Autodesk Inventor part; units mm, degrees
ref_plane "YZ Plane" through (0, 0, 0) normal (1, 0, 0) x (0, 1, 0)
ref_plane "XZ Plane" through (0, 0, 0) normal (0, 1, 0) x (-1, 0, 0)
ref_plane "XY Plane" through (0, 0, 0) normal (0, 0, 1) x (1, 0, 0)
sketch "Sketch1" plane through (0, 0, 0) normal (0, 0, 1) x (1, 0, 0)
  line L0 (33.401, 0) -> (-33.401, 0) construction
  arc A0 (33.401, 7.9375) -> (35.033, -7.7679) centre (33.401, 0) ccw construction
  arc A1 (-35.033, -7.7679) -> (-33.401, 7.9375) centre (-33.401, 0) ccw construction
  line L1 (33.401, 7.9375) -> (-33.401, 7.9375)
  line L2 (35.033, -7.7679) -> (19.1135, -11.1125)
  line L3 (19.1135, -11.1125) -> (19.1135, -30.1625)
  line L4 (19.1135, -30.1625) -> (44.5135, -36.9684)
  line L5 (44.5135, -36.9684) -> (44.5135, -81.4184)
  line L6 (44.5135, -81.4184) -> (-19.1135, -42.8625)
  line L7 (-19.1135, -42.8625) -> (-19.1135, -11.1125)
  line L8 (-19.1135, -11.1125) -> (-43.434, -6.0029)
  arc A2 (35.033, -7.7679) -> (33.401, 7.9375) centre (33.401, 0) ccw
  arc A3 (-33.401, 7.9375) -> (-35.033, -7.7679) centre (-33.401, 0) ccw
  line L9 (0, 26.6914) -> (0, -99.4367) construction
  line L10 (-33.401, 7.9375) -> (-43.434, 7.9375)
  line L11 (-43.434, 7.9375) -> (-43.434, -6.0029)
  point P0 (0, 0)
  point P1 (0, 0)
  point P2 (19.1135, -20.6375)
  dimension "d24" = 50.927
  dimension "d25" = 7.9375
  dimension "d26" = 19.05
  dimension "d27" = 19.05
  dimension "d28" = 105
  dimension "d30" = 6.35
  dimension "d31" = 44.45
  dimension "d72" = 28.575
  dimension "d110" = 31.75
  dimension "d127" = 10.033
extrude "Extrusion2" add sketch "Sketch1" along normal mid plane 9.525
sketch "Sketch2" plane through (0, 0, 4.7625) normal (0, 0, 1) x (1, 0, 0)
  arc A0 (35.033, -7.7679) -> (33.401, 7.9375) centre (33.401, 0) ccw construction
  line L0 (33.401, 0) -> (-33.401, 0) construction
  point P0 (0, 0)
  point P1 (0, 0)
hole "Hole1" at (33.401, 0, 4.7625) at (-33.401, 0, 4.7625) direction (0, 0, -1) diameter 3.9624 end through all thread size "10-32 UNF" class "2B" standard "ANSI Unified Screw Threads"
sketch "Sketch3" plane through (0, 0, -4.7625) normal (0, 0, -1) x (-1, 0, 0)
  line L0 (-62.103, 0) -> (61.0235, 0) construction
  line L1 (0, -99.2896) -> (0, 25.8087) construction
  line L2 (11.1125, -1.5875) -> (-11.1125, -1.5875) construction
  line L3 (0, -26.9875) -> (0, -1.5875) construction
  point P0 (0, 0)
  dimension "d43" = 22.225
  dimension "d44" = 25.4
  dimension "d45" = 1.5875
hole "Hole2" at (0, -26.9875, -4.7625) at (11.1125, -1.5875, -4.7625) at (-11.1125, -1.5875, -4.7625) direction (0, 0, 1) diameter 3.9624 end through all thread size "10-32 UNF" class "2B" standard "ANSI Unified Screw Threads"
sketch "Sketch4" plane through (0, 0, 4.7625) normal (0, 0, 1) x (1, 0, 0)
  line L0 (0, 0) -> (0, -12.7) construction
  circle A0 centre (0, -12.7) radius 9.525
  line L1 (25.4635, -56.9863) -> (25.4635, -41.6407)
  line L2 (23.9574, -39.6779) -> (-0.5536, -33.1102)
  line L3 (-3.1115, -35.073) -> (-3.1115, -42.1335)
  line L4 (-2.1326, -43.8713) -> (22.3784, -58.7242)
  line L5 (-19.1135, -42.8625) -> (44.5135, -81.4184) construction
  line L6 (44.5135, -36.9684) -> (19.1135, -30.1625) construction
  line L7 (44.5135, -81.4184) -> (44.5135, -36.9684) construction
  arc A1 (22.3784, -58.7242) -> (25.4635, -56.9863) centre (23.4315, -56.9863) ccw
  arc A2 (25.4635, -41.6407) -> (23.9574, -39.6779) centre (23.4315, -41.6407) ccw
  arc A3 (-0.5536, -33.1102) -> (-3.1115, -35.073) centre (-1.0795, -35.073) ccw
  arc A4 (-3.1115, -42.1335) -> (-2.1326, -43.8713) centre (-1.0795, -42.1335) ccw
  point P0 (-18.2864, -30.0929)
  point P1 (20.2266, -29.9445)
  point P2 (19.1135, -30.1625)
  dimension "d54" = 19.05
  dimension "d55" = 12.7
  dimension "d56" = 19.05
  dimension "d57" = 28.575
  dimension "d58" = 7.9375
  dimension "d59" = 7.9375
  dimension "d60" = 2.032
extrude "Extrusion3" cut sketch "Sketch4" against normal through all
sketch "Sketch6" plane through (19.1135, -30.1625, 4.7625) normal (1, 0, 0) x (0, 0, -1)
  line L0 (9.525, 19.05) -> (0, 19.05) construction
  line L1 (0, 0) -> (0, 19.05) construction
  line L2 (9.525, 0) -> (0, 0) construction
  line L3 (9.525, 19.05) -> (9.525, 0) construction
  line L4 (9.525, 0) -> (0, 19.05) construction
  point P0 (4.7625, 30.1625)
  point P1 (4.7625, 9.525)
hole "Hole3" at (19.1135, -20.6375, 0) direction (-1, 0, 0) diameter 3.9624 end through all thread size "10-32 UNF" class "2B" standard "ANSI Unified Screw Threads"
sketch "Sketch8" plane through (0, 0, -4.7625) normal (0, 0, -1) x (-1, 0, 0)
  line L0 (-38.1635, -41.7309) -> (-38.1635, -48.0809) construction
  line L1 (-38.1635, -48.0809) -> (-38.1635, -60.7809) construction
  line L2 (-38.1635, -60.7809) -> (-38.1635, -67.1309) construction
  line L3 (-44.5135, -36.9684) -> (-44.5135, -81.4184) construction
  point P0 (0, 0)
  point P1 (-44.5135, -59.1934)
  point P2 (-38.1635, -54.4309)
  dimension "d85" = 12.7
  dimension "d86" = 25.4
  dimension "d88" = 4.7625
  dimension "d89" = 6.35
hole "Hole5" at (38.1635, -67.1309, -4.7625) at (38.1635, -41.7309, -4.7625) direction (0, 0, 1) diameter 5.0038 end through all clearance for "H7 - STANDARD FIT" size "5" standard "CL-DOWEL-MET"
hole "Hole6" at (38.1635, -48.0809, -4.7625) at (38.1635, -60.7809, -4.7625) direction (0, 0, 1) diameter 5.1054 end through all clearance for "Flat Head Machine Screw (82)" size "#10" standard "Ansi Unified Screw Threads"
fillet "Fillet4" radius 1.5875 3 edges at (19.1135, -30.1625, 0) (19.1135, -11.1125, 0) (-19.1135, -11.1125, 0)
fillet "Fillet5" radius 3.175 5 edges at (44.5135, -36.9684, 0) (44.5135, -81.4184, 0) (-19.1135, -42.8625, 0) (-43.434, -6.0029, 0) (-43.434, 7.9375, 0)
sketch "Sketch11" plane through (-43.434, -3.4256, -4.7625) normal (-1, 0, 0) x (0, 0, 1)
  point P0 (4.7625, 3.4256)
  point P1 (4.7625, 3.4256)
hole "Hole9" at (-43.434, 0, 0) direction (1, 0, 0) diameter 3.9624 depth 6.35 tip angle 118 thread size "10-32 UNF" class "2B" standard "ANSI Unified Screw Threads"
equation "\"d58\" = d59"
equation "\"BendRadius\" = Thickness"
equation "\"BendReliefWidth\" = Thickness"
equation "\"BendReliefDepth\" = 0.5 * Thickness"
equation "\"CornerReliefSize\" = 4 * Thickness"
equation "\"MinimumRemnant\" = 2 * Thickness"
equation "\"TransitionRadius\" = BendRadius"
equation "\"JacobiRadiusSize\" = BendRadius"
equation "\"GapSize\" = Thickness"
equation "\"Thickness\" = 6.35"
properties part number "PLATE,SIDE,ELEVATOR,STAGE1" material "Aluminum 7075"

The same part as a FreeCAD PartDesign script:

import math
import FreeCAD as App
import Part
import Sketcher

V = App.Vector
Q = App.Units.Quantity


def edges_at(feature, points):
    """Names of the edges that pass closest to the given points."""
    edges = feature.Shape.Edges
    near = lambda p: min(range(len(edges)), key=lambda i: edges[i].distToShape(Part.Vertex(*p))[0])
    return sorted({f"Edge{near(p) + 1}" for p in points})

doc = App.newDocument("Part")
body = doc.addObject("PartDesign::Body", "Body")

# Sketch on XY plane
sketch1 = body.newObject("Sketcher::SketchObject", "Sketch")
sketch1.AttachmentSupport = (doc.getObject("XY_Plane"), [""])
sketch1.MapMode = "FlatFace"
sketch1.addGeometry([
    Part.ArcOfCircle(Part.Circle(V(33, 0, 0), V(0, 0, 1), 8), math.radians(-78), math.radians(90)),  # 0
    Part.LineSegment(V(33, 8, 0), V(-43, 8, 0)),  # 1
    Part.LineSegment(V(-43, 8, 0), V(-43, -6, 0)),  # 2
    Part.LineSegment(V(-43, -6, 0), V(-19, -11, 0)),  # 3
    Part.LineSegment(V(-19, -11, 0), V(-19, -43, 0)),  # 4
    Part.LineSegment(V(-19, -43, 0), V(45, -81, 0)),  # 5
    Part.LineSegment(V(45, -81, 0), V(45, -37, 0)),  # 6
    Part.LineSegment(V(45, -37, 0), V(19, -30, 0)),  # 7
    Part.LineSegment(V(19, -30, 0), V(19, -11, 0)),  # 8
    Part.LineSegment(V(19, -11, 0), V(35, -8, 0)),  # 9
], False)
sketch1.addConstraint([
    Sketcher.Constraint("Tangent", 0, 2, 1, 1),
    Sketcher.Constraint("Coincident", 1, 2, 2, 1),
    Sketcher.Constraint("Coincident", 2, 2, 3, 1),
    Sketcher.Constraint("Coincident", 3, 2, 4, 1),
    Sketcher.Constraint("Coincident", 4, 2, 5, 1),
    Sketcher.Constraint("Coincident", 5, 2, 6, 1),
    Sketcher.Constraint("Coincident", 6, 2, 7, 1),
    Sketcher.Constraint("Coincident", 7, 2, 8, 1),
    Sketcher.Constraint("Coincident", 8, 2, 9, 1),
    Sketcher.Constraint("Tangent", 9, 2, 0, 1),
    Sketcher.Constraint("Horizontal", 1),
    Sketcher.Constraint("Vertical", 2),
    Sketcher.Constraint("Vertical", 4),
    Sketcher.Constraint("Vertical", 6),
    Sketcher.Constraint("Vertical", 8),
    Sketcher.Constraint("Symmetric", 3, 2, 8, 2, -2),
    Sketcher.Constraint("PointOnObject", 0, 3, -1),
    Sketcher.Constraint("Radius", 0, Q("0.3125 in")),
    Sketcher.Constraint("DistanceY", 4, 2, 4, 1, Q("1.25 in")),
    Sketcher.Constraint("DistanceY", 6, 1, 6, 2, Q("1.75 in")),
    Sketcher.Constraint("DistanceY", 8, 1, 8, 2, Q("0.75 in")),
    Sketcher.Constraint("DistanceY", 3, 2, 1, 2, Q("0.75 in")),
    Sketcher.Constraint("Angle", 7, Q("165 deg")),
    Sketcher.Constraint("DistanceX", 7, 2, 6, 2, Q("1 in")),
    Sketcher.Constraint("DistanceX", 1, 2, 1, 1, Q("3.025 in")),
    Sketcher.Constraint("DistanceX", 1, 2, -1, 1, Q("1.71 in")),
    Sketcher.Constraint("DistanceX", 4, 2, 5, 2, Q("2.505 in")),
    Sketcher.Constraint("Distance", 3, Q("0.9784 in")),
])
pad1 = body.newObject("PartDesign::Pad", "Pad")
pad1.Profile = sketch1
pad1.Length = Q("0.375 in")
pad1.Midplane = True

# Sketch on XY plane
sketch2 = body.newObject("Sketcher::SketchObject", "Sketch001")
sketch2.AttachmentSupport = (doc.getObject("XY_Plane"), [""])
sketch2.MapMode = "FlatFace"
sketch2.AttachmentOffset = App.Placement(V(0, 0, 0.1875 * 25.4), App.Rotation())
sketch2.addGeometry([
    Part.Circle(V(33.4, 0, 0), V(0, 0, 1), 2),
    Part.Circle(V(-33.4, 0, 0), V(0, 0, 1), 2),
], False)
sketch2.addConstraint([
    Sketcher.Constraint("Equal", 0, 1),
    Sketcher.Constraint("Symmetric", 0, 3, 1, 3, -1, 1),
    Sketcher.Constraint("PointOnObject", 0, 3, -1),
    Sketcher.Constraint("Diameter", 0, Q("0.156 in")),
    Sketcher.Constraint("DistanceX", 1, 3, 0, 3, Q("2.63 in")),
])
doc.recompute()
hole = body.newObject("PartDesign::Hole", "Hole")
hole.Profile = sketch2
hole.ThreadType = "None"
hole.Diameter = Q("0.156 in")
hole.DepthType = "ThroughAll"

# Sketch on XY plane
sketch3 = body.newObject("Sketcher::SketchObject", "Sketch002")
sketch3.AttachmentSupport = (doc.getObject("XY_Plane"), [""])
sketch3.MapMode = "FlatFace"
sketch3.AttachmentOffset = App.Placement(V(0, 0, -0.1875 * 25.4), App.Rotation())
sketch3.addGeometry([
    Part.Circle(V(0, -27, 0), V(0, 0, 1), 2),
    Part.Circle(V(11.1, -1.6, 0), V(0, 0, 1), 2),
    Part.Circle(V(-11.1, -1.6, 0), V(0, 0, 1), 2),
], False)
sketch3.addConstraint([
    Sketcher.Constraint("Equal", 0, 1),
    Sketcher.Constraint("Equal", 1, 2),
    Sketcher.Constraint("Symmetric", 1, 3, 2, 3, -2),
    Sketcher.Constraint("PointOnObject", 0, 3, -2),
    Sketcher.Constraint("Diameter", 0, Q("0.156 in")),
    Sketcher.Constraint("DistanceY", 0, 3, 1, 3, Q("1 in")),
    Sketcher.Constraint("DistanceY", 0, 3, -1, 1, Q("1.0625 in")),
    Sketcher.Constraint("DistanceX", -1, 1, 1, 3, Q("0.4375 in")),
])
doc.recompute()
hole2 = body.newObject("PartDesign::Hole", "Hole001")
hole2.Profile = sketch3
hole2.ThreadType = "None"
hole2.Diameter = Q("0.156 in")
hole2.DepthType = "ThroughAll"
hole2.Reversed = True

# Sketch on XY plane
sketch4 = body.newObject("Sketcher::SketchObject", "Sketch003")
sketch4.AttachmentSupport = (doc.getObject("XY_Plane"), [""])
sketch4.MapMode = "FlatFace"
sketch4.AttachmentOffset = App.Placement(V(0, 0, 0.1875 * 25.4), App.Rotation())
sketch4.addGeometry([
    Part.Circle(V(0, -12.7, 0), V(0, 0, 1), 9.5),  # 0
    Part.ArcOfCircle(Part.Circle(V(23.4, -57, 0), V(0, 0, 1), 2), math.radians(-121), math.radians(0)),  # 1
    Part.LineSegment(V(25.5, -57, 0), V(25.5, -41.6, 0)),  # 2
    Part.ArcOfCircle(Part.Circle(V(23.4, -41.6, 0), V(0, 0, 1), 2), math.radians(0), math.radians(75)),  # 3
    Part.LineSegment(V(24, -39.7, 0), V(-0.6, -33.1, 0)),  # 4
    Part.ArcOfCircle(Part.Circle(V(-1.1, -35.1, 0), V(0, 0, 1), 2), math.radians(75), math.radians(180)),  # 5
    Part.LineSegment(V(-3.1, -35.1, 0), V(-3.1, -42.1, 0)),  # 6
    Part.ArcOfCircle(Part.Circle(V(-1.1, -42.1, 0), V(0, 0, 1), 2), math.radians(180), math.radians(239)),  # 7
    Part.LineSegment(V(-2.1, -43.9, 0), V(22.4, -58.7, 0)),  # 8
], False)
sketch4.addConstraint([
    Sketcher.Constraint("Tangent", 1, 2, 2, 1),
    Sketcher.Constraint("Tangent", 2, 2, 3, 1),
    Sketcher.Constraint("Tangent", 3, 2, 4, 1),
    Sketcher.Constraint("Tangent", 4, 2, 5, 1),
    Sketcher.Constraint("Tangent", 5, 2, 6, 1),
    Sketcher.Constraint("Tangent", 6, 2, 7, 1),
    Sketcher.Constraint("Tangent", 7, 2, 8, 1),
    Sketcher.Constraint("Tangent", 8, 2, 1, 1),
    Sketcher.Constraint("Vertical", 2),
    Sketcher.Constraint("Vertical", 6),
    Sketcher.Constraint("Equal", 1, 3),
    Sketcher.Constraint("Equal", 3, 5),
    Sketcher.Constraint("Equal", 5, 7),
    Sketcher.Constraint("PointOnObject", 0, 3, -2),
    Sketcher.Constraint("Diameter", 0, Q("0.75 in")),
    Sketcher.Constraint("Radius", 1, Q("0.08 in")),
    Sketcher.Constraint("DistanceY", 0, 3, -1, 1, Q("0.5 in")),
    Sketcher.Constraint("Angle", 4, Q("165 deg")),
    Sketcher.Constraint("DistanceX", 5, 3, 3, 3, Q("0.965 in")),
    Sketcher.Constraint("DistanceY", 2, 1, 2, 2, Q("15.3456 mm")),
    Sketcher.Constraint("DistanceY", 6, 2, 6, 1, Q("7.0605 mm")),
    Sketcher.Constraint("DistanceX", -1, 1, 1, 3, Q("0.9225 in")),
    Sketcher.Constraint("DistanceY", 3, 3, -1, 1, Q("1.6394 in")),
])
pocket1 = body.newObject("PartDesign::Pocket", "Pocket")
pocket1.Profile = sketch4
pocket1.Type = "ThroughAll"

# Sketch on YZ plane
sketch5 = body.newObject("Sketcher::SketchObject", "Sketch004")
sketch5.AttachmentSupport = (doc.getObject("YZ_Plane"), [""])
sketch5.MapMode = "FlatFace"
sketch5.AttachmentOffset = App.Placement(V(0, 0, 0.7525 * 25.4), App.Rotation())
sketch5.addGeometry(Part.Circle(V(-20.6, 0, 0), V(0, 0, 1), 2), False)
sketch5.addConstraint([
    Sketcher.Constraint("PointOnObject", 0, 3, -1),
    Sketcher.Constraint("Diameter", 0, Q("0.156 in")),
    Sketcher.Constraint("DistanceX", 0, 3, -1, 1, Q("0.8125 in")),
])
doc.recompute()
hole3 = body.newObject("PartDesign::Hole", "Hole002")
hole3.Profile = sketch5
hole3.ThreadType = "None"
hole3.Diameter = Q("0.156 in")
hole3.DepthType = "ThroughAll"

# Sketch on XY plane
sketch6 = body.newObject("Sketcher::SketchObject", "Sketch005")
sketch6.AttachmentSupport = (doc.getObject("XY_Plane"), [""])
sketch6.MapMode = "FlatFace"
sketch6.AttachmentOffset = App.Placement(V(0, 0, -0.1875 * 25.4), App.Rotation())
sketch6.addGeometry([
    Part.Circle(V(38.2, -67.1, 0), V(0, 0, 1), 2.5),
    Part.Circle(V(38.2, -41.7, 0), V(0, 0, 1), 2.5),
], False)
sketch6.addConstraint([
    Sketcher.Constraint("Equal", 0, 1),
    Sketcher.Constraint("Vertical", 0, 3, 1, 3),
    Sketcher.Constraint("Diameter", 0, Q("0.197 in")),
    Sketcher.Constraint("DistanceY", 0, 3, 1, 3, Q("1 in")),
    Sketcher.Constraint("DistanceX", -1, 1, 0, 3, Q("1.5025 in")),
    Sketcher.Constraint("DistanceY", 0, 3, -1, 1, Q("67.131 mm")),
])
doc.recompute()
hole4 = body.newObject("PartDesign::Hole", "Hole003")
hole4.Profile = sketch6
hole4.ThreadType = "None"
hole4.Diameter = Q("0.197 in")
hole4.DepthType = "ThroughAll"
hole4.Reversed = True

# Sketch on XY plane
sketch7 = body.newObject("Sketcher::SketchObject", "Sketch006")
sketch7.AttachmentSupport = (doc.getObject("XY_Plane"), [""])
sketch7.MapMode = "FlatFace"
sketch7.AttachmentOffset = App.Placement(V(0, 0, -0.1875 * 25.4), App.Rotation())
sketch7.addGeometry([
    Part.Circle(V(38.2, -48.1, 0), V(0, 0, 1), 2.6),
    Part.Circle(V(38.2, -60.8, 0), V(0, 0, 1), 2.6),
], False)
sketch7.addConstraint([
    Sketcher.Constraint("Equal", 0, 1),
    Sketcher.Constraint("Vertical", 0, 3, 1, 3),
    Sketcher.Constraint("Diameter", 0, Q("0.201 in")),
    Sketcher.Constraint("DistanceY", 1, 3, 0, 3, Q("0.5 in")),
    Sketcher.Constraint("DistanceX", -1, 1, 0, 3, Q("1.5025 in")),
    Sketcher.Constraint("DistanceY", 0, 3, -1, 1, Q("48.081 mm")),
])
doc.recompute()
hole5 = body.newObject("PartDesign::Hole", "Hole004")
hole5.Profile = sketch7
hole5.ThreadType = "None"
hole5.Diameter = Q("0.201 in")
hole5.DepthType = "ThroughAll"
hole5.Reversed = True
doc.recompute()

fillet = body.newObject("PartDesign::Fillet", "Fillet")
fillet.Base = (hole5, edges_at(hole5, [(19.113, -30.163, 0), (19.113, -11.113, 0), (-19.113, -11.113, 0)]))
fillet.Radius = Q("0.0625 in")
doc.recompute()

fillet2 = body.newObject("PartDesign::Fillet", "Fillet001")
fillet2.Base = (fillet, edges_at(fillet, [
    (44.514, -36.968, 0),
    (44.514, -81.418, 0),
    (-19.113, -42.862, 0),
    (-43.434, -6.003, 0),
    (-43.434, 7.938, 0),
]))
fillet2.Radius = Q("0.125 in")

# Sketch on YZ plane
sketch8 = body.newObject("Sketcher::SketchObject", "Sketch007")
sketch8.AttachmentSupport = (doc.getObject("YZ_Plane"), [""])
sketch8.MapMode = "FlatFace"
sketch8.AttachmentOffset = App.Placement(V(0, 0, -1.71 * 25.4), App.Rotation())
sketch8.addGeometry(Part.Circle(V(0, 0, 0), V(0, 0, 1), 2), False)
sketch8.addConstraint([
    Sketcher.Constraint("Coincident", 0, 3, -1, 1),
    Sketcher.Constraint("Diameter", 0, Q("0.156 in")),
])
doc.recompute()
hole6 = body.newObject("PartDesign::Hole", "Hole005")
hole6.Profile = sketch8
hole6.ThreadType = "None"
hole6.Diameter = Q("0.156 in")
hole6.DepthType = "Dimension"
hole6.Depth = Q("0.25 in")
hole6.DrillPoint = "Angled"
hole6.DrillPointAngle = 118
hole6.Reversed = True

doc.recompute()
